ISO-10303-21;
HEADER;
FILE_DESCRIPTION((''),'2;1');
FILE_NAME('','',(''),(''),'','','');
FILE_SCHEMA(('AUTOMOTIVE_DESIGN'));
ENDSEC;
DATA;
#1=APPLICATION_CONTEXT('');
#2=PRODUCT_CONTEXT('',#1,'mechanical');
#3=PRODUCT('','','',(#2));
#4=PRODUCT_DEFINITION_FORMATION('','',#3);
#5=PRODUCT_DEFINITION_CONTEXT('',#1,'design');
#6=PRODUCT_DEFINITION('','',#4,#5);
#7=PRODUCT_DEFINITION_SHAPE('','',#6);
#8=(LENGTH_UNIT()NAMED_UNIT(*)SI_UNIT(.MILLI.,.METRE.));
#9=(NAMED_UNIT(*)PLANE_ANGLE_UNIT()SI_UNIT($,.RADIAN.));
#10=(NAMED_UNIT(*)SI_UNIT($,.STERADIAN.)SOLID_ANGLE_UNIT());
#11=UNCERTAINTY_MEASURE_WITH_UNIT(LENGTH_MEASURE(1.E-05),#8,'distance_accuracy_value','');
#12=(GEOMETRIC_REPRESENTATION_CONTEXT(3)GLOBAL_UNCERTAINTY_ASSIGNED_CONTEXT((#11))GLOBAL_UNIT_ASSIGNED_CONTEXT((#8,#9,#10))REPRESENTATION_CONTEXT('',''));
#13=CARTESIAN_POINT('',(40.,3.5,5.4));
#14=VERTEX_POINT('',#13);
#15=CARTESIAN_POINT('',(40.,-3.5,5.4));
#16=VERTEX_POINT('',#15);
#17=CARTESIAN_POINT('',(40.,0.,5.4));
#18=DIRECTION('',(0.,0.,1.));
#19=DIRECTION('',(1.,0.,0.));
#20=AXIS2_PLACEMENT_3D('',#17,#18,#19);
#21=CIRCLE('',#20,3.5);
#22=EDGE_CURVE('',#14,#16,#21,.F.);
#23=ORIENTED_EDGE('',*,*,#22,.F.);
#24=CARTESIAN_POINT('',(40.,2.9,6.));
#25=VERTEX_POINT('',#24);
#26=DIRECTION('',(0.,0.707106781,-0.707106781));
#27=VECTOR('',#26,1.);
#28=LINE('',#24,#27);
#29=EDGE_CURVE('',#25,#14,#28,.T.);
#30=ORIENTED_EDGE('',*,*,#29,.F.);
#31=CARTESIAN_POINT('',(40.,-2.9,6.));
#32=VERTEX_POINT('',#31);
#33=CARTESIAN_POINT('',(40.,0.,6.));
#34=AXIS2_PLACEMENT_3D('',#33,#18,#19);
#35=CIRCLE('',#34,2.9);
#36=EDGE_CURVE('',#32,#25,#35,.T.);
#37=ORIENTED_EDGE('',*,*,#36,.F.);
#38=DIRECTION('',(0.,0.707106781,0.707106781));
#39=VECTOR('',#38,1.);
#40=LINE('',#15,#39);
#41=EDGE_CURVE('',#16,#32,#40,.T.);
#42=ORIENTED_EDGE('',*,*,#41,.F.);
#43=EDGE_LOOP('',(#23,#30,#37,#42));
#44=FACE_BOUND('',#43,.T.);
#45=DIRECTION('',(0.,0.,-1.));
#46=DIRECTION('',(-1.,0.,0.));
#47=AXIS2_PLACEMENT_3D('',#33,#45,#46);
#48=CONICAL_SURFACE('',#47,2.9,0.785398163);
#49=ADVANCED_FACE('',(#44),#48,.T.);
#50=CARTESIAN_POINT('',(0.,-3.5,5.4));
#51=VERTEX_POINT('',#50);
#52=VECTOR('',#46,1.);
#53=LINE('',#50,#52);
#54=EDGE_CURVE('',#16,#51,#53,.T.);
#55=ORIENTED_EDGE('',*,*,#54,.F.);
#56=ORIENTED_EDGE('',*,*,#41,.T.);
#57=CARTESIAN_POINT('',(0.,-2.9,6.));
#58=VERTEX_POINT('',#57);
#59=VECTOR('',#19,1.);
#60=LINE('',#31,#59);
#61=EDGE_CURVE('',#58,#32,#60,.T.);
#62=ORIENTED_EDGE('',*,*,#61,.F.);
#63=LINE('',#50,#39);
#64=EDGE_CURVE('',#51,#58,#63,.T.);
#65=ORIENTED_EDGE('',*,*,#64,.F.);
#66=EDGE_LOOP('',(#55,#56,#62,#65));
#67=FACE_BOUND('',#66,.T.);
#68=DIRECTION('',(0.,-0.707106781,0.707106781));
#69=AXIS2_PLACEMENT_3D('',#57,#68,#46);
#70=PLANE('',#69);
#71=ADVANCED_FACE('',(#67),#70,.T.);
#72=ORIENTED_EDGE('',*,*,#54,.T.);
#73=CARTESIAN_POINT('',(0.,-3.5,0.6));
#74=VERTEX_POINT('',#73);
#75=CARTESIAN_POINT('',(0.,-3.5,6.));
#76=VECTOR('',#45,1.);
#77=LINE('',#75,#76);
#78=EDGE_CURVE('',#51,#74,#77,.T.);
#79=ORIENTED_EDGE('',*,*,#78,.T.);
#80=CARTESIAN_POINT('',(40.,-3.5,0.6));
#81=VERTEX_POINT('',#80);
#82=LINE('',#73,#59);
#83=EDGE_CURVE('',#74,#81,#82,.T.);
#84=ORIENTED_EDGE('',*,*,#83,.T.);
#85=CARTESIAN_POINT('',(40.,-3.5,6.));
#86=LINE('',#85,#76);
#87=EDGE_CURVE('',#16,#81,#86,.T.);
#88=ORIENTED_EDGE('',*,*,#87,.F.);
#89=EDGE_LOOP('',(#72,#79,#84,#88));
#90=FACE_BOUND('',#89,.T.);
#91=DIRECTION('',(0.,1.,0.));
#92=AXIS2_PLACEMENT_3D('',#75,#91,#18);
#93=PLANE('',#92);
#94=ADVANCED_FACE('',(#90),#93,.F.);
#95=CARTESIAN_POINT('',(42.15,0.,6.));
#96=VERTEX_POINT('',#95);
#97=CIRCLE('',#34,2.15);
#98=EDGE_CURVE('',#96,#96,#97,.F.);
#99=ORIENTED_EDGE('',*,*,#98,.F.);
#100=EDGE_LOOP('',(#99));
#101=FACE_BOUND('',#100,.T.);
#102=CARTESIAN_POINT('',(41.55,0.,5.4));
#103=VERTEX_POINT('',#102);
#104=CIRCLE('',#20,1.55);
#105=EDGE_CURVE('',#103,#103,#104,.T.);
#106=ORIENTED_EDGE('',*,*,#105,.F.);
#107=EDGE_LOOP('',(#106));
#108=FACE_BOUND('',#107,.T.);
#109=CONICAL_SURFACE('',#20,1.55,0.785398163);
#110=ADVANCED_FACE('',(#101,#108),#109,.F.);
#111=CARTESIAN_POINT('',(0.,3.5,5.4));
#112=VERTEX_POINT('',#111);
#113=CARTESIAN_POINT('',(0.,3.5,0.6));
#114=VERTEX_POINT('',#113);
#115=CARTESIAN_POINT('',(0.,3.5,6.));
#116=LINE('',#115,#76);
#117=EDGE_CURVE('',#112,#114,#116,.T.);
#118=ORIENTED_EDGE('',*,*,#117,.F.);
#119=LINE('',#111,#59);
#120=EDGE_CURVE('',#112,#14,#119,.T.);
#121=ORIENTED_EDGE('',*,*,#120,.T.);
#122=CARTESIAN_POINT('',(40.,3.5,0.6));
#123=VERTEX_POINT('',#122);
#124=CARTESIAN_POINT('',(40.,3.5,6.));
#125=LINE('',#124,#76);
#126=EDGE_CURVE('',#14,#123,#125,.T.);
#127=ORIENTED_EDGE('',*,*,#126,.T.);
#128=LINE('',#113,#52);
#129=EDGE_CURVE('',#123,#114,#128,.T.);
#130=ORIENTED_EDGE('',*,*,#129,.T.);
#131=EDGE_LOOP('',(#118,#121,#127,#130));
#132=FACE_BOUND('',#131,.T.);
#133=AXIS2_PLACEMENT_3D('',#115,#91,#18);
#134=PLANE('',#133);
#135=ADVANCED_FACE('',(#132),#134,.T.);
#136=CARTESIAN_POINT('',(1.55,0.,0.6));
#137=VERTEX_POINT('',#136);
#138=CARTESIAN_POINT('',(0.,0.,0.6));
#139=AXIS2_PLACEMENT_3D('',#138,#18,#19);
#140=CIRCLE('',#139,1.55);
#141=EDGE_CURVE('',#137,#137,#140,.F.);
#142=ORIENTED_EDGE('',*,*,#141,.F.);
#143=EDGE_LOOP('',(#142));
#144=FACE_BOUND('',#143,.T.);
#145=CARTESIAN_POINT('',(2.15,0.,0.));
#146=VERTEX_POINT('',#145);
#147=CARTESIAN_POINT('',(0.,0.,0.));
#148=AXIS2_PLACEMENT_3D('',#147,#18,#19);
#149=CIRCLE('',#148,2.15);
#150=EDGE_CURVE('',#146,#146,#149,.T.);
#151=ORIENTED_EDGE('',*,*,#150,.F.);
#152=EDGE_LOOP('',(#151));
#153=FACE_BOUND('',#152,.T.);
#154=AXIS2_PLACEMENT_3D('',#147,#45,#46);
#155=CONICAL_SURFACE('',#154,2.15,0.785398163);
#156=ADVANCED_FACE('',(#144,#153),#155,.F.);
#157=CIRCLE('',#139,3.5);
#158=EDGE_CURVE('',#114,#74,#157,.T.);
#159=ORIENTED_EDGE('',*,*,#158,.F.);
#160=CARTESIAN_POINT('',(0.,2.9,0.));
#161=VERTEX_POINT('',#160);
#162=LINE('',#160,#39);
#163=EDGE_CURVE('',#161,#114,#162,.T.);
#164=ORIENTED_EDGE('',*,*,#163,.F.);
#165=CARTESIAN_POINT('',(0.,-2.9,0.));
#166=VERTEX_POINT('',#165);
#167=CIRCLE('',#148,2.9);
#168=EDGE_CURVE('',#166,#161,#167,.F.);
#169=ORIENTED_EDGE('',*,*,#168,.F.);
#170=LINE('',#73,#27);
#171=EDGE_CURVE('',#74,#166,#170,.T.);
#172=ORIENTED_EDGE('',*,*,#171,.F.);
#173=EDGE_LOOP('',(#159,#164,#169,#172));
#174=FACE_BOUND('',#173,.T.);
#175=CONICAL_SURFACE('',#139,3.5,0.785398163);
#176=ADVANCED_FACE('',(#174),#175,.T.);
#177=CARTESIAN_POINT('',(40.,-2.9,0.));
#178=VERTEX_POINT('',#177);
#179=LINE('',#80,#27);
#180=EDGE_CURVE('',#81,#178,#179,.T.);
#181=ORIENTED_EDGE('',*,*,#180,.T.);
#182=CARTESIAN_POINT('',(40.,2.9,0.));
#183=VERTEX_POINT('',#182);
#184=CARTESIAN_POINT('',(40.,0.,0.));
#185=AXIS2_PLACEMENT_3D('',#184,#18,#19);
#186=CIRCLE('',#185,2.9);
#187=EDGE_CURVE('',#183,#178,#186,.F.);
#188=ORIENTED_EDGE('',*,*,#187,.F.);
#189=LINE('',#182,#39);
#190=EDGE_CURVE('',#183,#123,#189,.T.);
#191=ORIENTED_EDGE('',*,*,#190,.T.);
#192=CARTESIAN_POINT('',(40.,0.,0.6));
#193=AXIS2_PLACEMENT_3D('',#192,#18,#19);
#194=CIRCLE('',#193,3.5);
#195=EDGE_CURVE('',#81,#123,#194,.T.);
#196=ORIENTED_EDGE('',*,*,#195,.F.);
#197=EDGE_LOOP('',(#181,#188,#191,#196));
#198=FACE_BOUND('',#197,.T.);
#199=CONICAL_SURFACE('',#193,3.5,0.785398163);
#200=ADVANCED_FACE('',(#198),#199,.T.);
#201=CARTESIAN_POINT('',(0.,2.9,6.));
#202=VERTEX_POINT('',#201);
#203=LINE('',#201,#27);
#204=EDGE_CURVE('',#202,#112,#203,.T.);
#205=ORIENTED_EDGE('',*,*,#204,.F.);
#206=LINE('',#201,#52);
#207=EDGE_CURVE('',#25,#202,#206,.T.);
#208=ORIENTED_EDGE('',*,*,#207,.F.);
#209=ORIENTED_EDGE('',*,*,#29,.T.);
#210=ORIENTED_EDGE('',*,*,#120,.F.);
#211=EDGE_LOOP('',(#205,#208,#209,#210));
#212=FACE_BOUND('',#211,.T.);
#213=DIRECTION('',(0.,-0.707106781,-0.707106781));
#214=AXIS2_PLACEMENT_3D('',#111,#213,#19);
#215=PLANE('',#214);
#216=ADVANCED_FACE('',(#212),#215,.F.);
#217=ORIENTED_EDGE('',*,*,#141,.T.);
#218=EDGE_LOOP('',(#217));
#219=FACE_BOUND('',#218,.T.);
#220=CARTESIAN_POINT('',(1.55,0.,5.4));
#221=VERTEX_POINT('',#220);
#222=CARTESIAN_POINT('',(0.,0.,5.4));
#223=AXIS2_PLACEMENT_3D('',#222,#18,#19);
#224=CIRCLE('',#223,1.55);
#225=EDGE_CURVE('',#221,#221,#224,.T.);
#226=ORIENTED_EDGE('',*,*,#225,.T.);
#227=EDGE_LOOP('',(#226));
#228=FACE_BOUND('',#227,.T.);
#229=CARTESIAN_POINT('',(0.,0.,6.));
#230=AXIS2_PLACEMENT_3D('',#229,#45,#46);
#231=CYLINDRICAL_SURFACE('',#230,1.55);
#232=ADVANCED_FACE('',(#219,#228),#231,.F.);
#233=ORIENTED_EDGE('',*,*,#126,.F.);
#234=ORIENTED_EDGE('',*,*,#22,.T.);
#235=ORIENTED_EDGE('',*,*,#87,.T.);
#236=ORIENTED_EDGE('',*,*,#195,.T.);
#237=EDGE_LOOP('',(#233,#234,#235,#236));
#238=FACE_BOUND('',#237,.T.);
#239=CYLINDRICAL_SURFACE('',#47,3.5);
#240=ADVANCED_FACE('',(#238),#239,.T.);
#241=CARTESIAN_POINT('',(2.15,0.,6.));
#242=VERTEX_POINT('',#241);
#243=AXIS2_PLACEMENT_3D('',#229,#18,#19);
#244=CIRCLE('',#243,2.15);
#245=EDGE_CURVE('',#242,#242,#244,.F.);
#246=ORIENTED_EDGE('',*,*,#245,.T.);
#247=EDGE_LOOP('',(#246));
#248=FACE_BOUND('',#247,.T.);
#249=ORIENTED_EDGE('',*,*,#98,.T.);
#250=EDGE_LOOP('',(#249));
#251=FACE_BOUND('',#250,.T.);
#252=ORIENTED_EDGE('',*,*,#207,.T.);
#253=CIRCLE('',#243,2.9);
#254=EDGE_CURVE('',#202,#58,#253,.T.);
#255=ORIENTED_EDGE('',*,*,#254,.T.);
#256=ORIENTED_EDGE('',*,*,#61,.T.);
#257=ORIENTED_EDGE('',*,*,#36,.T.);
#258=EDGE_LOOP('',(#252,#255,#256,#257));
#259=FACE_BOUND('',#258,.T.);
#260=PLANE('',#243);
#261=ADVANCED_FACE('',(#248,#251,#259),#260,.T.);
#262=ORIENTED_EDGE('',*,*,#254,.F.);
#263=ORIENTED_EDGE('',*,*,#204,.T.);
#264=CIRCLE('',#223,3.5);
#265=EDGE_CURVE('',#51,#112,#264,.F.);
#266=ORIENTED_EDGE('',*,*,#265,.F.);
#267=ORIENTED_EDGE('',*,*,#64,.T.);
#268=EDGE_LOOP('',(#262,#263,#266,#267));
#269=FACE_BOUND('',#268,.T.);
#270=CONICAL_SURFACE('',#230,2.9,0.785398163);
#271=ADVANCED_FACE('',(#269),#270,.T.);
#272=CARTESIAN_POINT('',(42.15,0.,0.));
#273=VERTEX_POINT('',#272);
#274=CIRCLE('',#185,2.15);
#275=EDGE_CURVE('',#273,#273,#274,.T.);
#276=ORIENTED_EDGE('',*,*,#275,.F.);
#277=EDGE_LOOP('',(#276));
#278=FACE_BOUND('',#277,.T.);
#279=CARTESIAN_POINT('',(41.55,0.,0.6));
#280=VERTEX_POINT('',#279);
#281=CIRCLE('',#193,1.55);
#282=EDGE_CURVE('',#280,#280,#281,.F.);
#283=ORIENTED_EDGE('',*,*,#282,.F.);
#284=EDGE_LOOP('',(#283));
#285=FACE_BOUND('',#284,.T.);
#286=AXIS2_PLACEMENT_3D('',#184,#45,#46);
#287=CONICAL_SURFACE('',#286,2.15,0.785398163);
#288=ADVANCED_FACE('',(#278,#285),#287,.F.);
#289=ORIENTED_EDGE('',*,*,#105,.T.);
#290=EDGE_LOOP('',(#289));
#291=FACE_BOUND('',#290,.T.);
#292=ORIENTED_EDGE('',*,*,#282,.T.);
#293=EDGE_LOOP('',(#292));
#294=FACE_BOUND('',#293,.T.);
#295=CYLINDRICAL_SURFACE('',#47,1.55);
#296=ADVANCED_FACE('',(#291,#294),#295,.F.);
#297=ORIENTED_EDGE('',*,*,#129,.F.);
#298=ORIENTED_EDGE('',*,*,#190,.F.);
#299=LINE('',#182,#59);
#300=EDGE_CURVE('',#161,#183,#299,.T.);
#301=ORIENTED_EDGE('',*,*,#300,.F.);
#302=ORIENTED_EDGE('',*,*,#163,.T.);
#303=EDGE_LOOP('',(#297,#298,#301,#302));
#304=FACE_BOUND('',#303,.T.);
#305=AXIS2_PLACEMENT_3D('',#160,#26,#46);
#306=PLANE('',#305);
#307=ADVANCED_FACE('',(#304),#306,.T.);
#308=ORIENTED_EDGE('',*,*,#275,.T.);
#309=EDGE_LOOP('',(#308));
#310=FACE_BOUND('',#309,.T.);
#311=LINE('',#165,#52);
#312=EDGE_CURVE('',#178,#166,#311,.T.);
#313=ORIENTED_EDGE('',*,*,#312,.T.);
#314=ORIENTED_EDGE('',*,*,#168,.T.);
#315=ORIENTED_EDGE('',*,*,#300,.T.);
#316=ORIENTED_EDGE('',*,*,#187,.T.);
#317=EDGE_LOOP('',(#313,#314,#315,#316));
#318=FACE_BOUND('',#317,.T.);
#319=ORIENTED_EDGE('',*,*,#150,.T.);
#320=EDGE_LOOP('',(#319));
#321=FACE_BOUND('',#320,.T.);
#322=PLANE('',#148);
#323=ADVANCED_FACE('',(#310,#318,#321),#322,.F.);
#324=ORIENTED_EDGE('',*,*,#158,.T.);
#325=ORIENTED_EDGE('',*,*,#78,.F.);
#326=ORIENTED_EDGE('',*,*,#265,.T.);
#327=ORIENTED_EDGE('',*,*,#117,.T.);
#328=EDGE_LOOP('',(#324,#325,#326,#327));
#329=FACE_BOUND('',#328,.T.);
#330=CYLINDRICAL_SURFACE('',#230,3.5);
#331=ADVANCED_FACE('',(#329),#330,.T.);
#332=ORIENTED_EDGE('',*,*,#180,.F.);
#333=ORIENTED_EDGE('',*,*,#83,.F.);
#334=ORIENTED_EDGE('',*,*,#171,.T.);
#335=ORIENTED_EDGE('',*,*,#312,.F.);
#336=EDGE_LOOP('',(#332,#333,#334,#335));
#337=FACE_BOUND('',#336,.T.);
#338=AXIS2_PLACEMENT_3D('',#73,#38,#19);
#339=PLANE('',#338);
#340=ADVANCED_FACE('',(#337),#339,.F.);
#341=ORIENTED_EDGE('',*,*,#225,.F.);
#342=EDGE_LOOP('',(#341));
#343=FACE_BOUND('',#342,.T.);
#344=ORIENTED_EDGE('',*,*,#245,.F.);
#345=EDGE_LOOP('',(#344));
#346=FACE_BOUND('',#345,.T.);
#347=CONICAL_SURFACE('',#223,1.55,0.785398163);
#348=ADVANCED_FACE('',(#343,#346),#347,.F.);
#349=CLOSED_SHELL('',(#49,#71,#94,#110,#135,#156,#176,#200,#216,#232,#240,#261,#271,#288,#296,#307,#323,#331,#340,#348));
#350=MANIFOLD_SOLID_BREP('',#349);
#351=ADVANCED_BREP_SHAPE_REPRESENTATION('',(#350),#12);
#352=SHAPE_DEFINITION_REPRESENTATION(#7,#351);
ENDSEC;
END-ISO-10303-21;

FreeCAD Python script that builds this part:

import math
import FreeCAD as App
import Part
import Sketcher
from FreeCAD import Vector
Q = App.Units.Quantity


def edges_at(feature, points):
    """Names of the edges that pass closest to the given points."""
    edges = feature.Shape.Edges
    near = lambda p: min(range(len(edges)), key=lambda i: edges[i].distToShape(Part.Vertex(*p))[0])
    return sorted({f"Edge{near(p) + 1}" for p in points})

doc = App.newDocument("Part")
body = doc.addObject("PartDesign::Body", "Body")

# Sketch on XY plane
sketch1 = body.newObject("Sketcher::SketchObject", "Sketch")
sketch1.AttachmentSupport = (doc.getObject("XY_Plane"), [""])
sketch1.MapMode = "FlatFace"
sketch1.addGeometry(Part.ArcOfCircle(Part.Circle(Vector(0, 0, 0), Vector(0, 0, 1), 3.5), math.radians(90), math.radians(270)), False)
sketch1.addGeometry(Part.LineSegment(Vector(0, -3.5, 0), Vector(40, -3.5, 0)), False)
sketch1.addGeometry(Part.ArcOfCircle(Part.Circle(Vector(40, 0, 0), Vector(0, 0, 1), 3.5), math.radians(-90), math.radians(90)), False)
sketch1.addGeometry(Part.LineSegment(Vector(40, 3.5, 0), Vector(0, 3.5, 0)), False)
sketch1.addGeometry(Part.Circle(Vector(0, 0, 0), Vector(0, 0, 1), 1.6), False)
sketch1.addGeometry(Part.Circle(Vector(40, 0, 0), Vector(0, 0, 1), 1.6), False)
sketch1.addConstraint(Sketcher.Constraint("Tangent", 0, 2, 1, 1))
sketch1.addConstraint(Sketcher.Constraint("Tangent", 1, 2, 2, 1))
sketch1.addConstraint(Sketcher.Constraint("Tangent", 2, 2, 3, 1))
sketch1.addConstraint(Sketcher.Constraint("Tangent", 3, 2, 0, 1))
sketch1.addConstraint(Sketcher.Constraint("Horizontal", 1))
sketch1.addConstraint(Sketcher.Constraint("Horizontal", 3))
sketch1.addConstraint(Sketcher.Constraint("Coincident", 0, 3, -1, 1))
sketch1.addConstraint(Sketcher.Constraint("Coincident", 4, 3, -1, 1))
sketch1.addConstraint(Sketcher.Constraint("Coincident", 5, 3, 2, 3))
sketch1.addConstraint(Sketcher.Constraint("Equal", 4, 5))
sketch1.addConstraint(Sketcher.Constraint("Diameter", 4, Q("3.1 mm")))
sketch1.addConstraint(Sketcher.Constraint("Radius", 0, Q("3.5 mm")))
sketch1.addConstraint(Sketcher.Constraint("DistanceX", 1, 1, 1, 2, Q("40 mm")))
pad1 = body.newObject("PartDesign::Pad", "Pad")
pad1.Profile = sketch1
pad1.Length = 6
doc.recompute()

chamfer = body.newObject("PartDesign::Chamfer", "Chamfer")
chamfer.Base = (pad1, edges_at(pad1, [
    (43.5, 0, 6),
    (20, 3.5, 6),
    (-3.5, 0, 6),
    (38.45, 0, 6),
    (-1.55, 0, 6),
    (20, -3.5, 6),
    (-1.55, 0, 0),
    (38.45, 0, 0),
    (-3.5, 0, 0),
    (20, 3.5, 0),
    (43.5, 0, 0),
    (20, -3.5, 0),
]))
chamfer.Size = 0.6

doc.recompute()
